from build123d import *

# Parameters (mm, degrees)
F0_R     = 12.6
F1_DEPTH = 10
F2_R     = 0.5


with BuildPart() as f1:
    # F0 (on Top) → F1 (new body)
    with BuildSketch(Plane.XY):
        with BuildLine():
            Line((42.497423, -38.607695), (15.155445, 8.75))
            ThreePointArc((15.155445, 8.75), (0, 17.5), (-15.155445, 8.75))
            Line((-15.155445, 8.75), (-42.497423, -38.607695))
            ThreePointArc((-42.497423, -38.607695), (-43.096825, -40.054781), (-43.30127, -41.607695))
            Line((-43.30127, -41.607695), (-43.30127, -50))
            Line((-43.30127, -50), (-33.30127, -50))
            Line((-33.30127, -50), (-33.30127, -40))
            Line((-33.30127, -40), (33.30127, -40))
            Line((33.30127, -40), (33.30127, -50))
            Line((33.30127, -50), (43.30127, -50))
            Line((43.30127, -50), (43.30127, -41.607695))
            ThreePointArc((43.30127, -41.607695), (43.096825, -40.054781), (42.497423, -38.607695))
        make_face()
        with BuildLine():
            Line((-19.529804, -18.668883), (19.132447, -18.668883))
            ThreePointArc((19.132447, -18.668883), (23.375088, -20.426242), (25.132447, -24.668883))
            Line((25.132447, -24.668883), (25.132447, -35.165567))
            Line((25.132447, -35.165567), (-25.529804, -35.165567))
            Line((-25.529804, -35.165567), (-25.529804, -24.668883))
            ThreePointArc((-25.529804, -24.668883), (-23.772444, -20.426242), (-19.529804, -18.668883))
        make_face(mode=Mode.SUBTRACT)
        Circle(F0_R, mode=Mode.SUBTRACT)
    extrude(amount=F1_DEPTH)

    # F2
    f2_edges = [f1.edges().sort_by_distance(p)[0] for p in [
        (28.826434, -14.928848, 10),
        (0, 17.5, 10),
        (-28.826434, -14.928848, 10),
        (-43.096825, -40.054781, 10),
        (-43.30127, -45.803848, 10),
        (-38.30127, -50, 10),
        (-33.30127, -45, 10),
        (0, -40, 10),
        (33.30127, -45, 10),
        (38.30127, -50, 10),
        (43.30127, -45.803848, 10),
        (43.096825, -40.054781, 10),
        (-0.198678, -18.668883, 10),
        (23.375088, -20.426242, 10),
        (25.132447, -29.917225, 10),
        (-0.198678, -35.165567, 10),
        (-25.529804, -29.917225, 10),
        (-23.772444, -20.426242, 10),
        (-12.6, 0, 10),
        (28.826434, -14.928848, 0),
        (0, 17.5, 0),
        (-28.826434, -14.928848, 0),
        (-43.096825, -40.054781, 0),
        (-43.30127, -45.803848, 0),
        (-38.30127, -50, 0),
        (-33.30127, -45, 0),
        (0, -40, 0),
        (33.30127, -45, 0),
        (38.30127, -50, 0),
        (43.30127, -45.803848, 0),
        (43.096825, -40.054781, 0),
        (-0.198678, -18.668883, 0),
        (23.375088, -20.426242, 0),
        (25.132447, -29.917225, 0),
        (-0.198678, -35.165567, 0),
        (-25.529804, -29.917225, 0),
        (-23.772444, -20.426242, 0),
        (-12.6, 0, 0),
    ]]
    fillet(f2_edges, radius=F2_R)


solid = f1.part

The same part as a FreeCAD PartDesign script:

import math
import FreeCAD as App
import Part
import Sketcher
from FreeCAD import Vector
Q = App.Units.Quantity


def edges_at(feature, points):
    """Names of the edges that pass closest to the given points."""
    edges = feature.Shape.Edges
    near = lambda p: min(range(len(edges)), key=lambda i: edges[i].distToShape(Part.Vertex(*p))[0])
    return sorted({f"Edge{near(p) + 1}" for p in points})

doc = App.newDocument("Part")
body = doc.addObject("PartDesign::Body", "Body")

# Sketch on XY plane
sketch1 = body.newObject("Sketcher::SketchObject", "Sketch")
sketch1.AttachmentSupport = (doc.getObject("XY_Plane"), [""])
sketch1.MapMode = "FlatFace"
sketch1.addGeometry([
    Part.LineSegment(Vector(42.497423, -38.607695, 0), Vector(15.155445, 8.75, 0)),  # 0
    Part.ArcOfCircle(Part.Circle(Vector(0, -0.000001, 0), Vector(0, 0, 1), 17.500001), math.radians(30.000001), math.radians(149.999999)),  # 1
    Part.LineSegment(Vector(-15.155445, 8.75, 0), Vector(-42.497423, -38.607695, 0)),  # 2
    Part.ArcOfCircle(Part.Circle(Vector(-37.301262, -41.607696, 0), Vector(0, 0, 1), 6.000008), math.radians(150.000032), math.radians(179.999989)),  # 3
    Part.LineSegment(Vector(-43.30127, -41.607695, 0), Vector(-43.30127, -50, 0)),  # 4
    Part.LineSegment(Vector(-43.30127, -50, 0), Vector(-33.30127, -50, 0)),  # 5
    Part.LineSegment(Vector(-33.30127, -50, 0), Vector(-33.30127, -40, 0)),  # 6
    Part.LineSegment(Vector(-33.30127, -40, 0), Vector(33.30127, -40, 0)),  # 7
    Part.LineSegment(Vector(33.30127, -40, 0), Vector(33.30127, -50, 0)),  # 8
    Part.LineSegment(Vector(33.30127, -50, 0), Vector(43.30127, -50, 0)),  # 9
    Part.LineSegment(Vector(43.30127, -50, 0), Vector(43.30127, -41.607695, 0)),  # 10
    Part.ArcOfCircle(Part.Circle(Vector(37.301262, -41.607696, 0), Vector(0, 0, 1), 6.000008), math.radians(0.000011), math.radians(29.999968)),  # 11
    Part.ArcOfCircle(Part.Circle(Vector(-19.529803, -24.668884, 0), Vector(0, 0, 1), 6.000001), math.radians(90.000006), math.radians(179.999994)),  # 12
    Part.LineSegment(Vector(-19.529804, -18.668883, 0), Vector(19.132447, -18.668883, 0)),  # 13
    Part.ArcOfCircle(Part.Circle(Vector(19.132448, -24.668882, 0), Vector(0, 0, 1), 5.999999), math.radians(-0.00001), math.radians(90.00001)),  # 14
    Part.LineSegment(Vector(25.132447, -24.668883, 0), Vector(25.132447, -35.165567, 0)),  # 15
    Part.LineSegment(Vector(25.132447, -35.165567, 0), Vector(-25.529804, -35.165567, 0)),  # 16
    Part.LineSegment(Vector(-25.529804, -35.165567, 0), Vector(-25.529804, -24.668883, 0)),  # 17
    Part.Circle(Vector(0, 0, 0), Vector(0, 0, 1), 12.6),  # 18
], False)
sketch1.addConstraint([
    Sketcher.Constraint("Tangent", 0, 2, 1, 1),
    Sketcher.Constraint("Tangent", 1, 2, 2, 1),
    Sketcher.Constraint("Tangent", 2, 2, 3, 1),
    Sketcher.Constraint("Tangent", 3, 2, 4, 1),
    Sketcher.Constraint("Coincident", 4, 2, 5, 1),
    Sketcher.Constraint("Coincident", 5, 2, 6, 1),
    Sketcher.Constraint("Coincident", 6, 2, 7, 1),
    Sketcher.Constraint("Coincident", 7, 2, 8, 1),
    Sketcher.Constraint("Coincident", 8, 2, 9, 1),
    Sketcher.Constraint("Coincident", 9, 2, 10, 1),
    Sketcher.Constraint("Tangent", 10, 2, 11, 1),
    Sketcher.Constraint("Tangent", 11, 2, 0, 1),
    Sketcher.Constraint("Tangent", 12, 1, 13, 1),
    Sketcher.Constraint("Tangent", 13, 2, 14, 2),
    Sketcher.Constraint("Tangent", 14, 1, 15, 1),
    Sketcher.Constraint("Coincident", 15, 2, 16, 1),
    Sketcher.Constraint("Coincident", 16, 2, 17, 1),
    Sketcher.Constraint("Tangent", 17, 2, 12, 2),
    Sketcher.Constraint("Vertical", 4),
    Sketcher.Constraint("Horizontal", 5),
    Sketcher.Constraint("Vertical", 6),
    Sketcher.Constraint("Horizontal", 7),
    Sketcher.Constraint("Vertical", 8),
    Sketcher.Constraint("Horizontal", 9),
    Sketcher.Constraint("Vertical", 10),
    Sketcher.Constraint("Horizontal", 13),
    Sketcher.Constraint("Vertical", 15),
    Sketcher.Constraint("Horizontal", 16),
    Sketcher.Constraint("Vertical", 17),
    Sketcher.Constraint("Coincident", 1, 3, -1, 1),
    Sketcher.Constraint("Coincident", 18, 3, -1, 1),
    Sketcher.Constraint("Equal", 3, 11),
    Sketcher.Constraint("Equal", 12, 14),
    Sketcher.Constraint("Symmetric", 3, 3, 11, 3, -2),
    Sketcher.Constraint("Symmetric", 5, 2, 8, 2, -2),
    Sketcher.Constraint("Equal", 9, 6),
    Sketcher.Constraint("Radius", 12, Q("6.000001 mm")),
    Sketcher.Constraint("Diameter", 18, Q("25.2 mm")),
    Sketcher.Constraint("Radius", 1, Q("17.500001 mm")),
    Sketcher.Constraint("DistanceX", 5, 1, 5, 2, Q("10 mm")),
    Sketcher.Constraint("Angle", 0, Q("120 deg")),
    Sketcher.Constraint("DistanceY", 4, 2, -1, 1, Q("50 mm")),
    Sketcher.Constraint("DistanceY", 3, 3, 2, 2, Q("3.000001 mm")),
    Sketcher.Constraint("DistanceX", 0, 2, 13, 2, Q("3.977002 mm")),
    Sketcher.Constraint("DistanceX", 7, 1, 7, 2, Q("66.60254 mm")),
    Sketcher.Constraint("DistanceX", 13, 1, 13, 2, Q("38.662251 mm")),
    Sketcher.Constraint("DistanceY", 15, 2, 15, 1, Q("10.496684 mm")),
    Sketcher.Constraint("DistanceY", 14, 3, -1, 1, Q("24.668882 mm")),
])
pad1 = body.newObject("PartDesign::Pad", "Pad")
pad1.Profile = sketch1
pad1.Length = 10
doc.recompute()

fillet = body.newObject("PartDesign::Fillet", "Fillet")
fillet.Base = (pad1, edges_at(pad1, [
    (28.826, -14.929, 10),
    (0, 17.5, 10),
    (-28.826, -14.929, 10),
    (-43.097, -40.055, 10),
    (-43.301, -45.804, 10),
    (-38.301, -50, 10),
    (-33.301, -45, 10),
    (0, -40, 10),
    (33.301, -45, 10),
    (38.301, -50, 10),
    (43.301, -45.804, 10),
    (43.097, -40.055, 10),
    (-0.199, -18.669, 10),
    (23.375, -20.426, 10),
    (25.132, -29.917, 10),
    (-0.199, -35.166, 10),
    (-25.53, -29.917, 10),
    (-23.772, -20.426, 10),
    (-12.6, 0, 10),
    (28.826, -14.929, 0),
    (0, 17.5, 0),
    (-28.826, -14.929, 0),
    (-43.097, -40.055, 0),
    (-43.301, -45.804, 0),
    (-38.301, -50, 0),
    (-33.301, -45, 0),
    (0, -40, 0),
    (33.301, -45, 0),
    (38.301, -50, 0),
    (43.301, -45.804, 0),
    (43.097, -40.055, 0),
    (-0.199, -18.669, 0),
    (23.375, -20.426, 0),
    (25.132, -29.917, 0),
    (-0.199, -35.166, 0),
    (-25.53, -29.917, 0),
    (-23.772, -20.426, 0),
    (-12.6, 0, 0),
]))
fillet.Radius = 0.5

doc.recompute()
